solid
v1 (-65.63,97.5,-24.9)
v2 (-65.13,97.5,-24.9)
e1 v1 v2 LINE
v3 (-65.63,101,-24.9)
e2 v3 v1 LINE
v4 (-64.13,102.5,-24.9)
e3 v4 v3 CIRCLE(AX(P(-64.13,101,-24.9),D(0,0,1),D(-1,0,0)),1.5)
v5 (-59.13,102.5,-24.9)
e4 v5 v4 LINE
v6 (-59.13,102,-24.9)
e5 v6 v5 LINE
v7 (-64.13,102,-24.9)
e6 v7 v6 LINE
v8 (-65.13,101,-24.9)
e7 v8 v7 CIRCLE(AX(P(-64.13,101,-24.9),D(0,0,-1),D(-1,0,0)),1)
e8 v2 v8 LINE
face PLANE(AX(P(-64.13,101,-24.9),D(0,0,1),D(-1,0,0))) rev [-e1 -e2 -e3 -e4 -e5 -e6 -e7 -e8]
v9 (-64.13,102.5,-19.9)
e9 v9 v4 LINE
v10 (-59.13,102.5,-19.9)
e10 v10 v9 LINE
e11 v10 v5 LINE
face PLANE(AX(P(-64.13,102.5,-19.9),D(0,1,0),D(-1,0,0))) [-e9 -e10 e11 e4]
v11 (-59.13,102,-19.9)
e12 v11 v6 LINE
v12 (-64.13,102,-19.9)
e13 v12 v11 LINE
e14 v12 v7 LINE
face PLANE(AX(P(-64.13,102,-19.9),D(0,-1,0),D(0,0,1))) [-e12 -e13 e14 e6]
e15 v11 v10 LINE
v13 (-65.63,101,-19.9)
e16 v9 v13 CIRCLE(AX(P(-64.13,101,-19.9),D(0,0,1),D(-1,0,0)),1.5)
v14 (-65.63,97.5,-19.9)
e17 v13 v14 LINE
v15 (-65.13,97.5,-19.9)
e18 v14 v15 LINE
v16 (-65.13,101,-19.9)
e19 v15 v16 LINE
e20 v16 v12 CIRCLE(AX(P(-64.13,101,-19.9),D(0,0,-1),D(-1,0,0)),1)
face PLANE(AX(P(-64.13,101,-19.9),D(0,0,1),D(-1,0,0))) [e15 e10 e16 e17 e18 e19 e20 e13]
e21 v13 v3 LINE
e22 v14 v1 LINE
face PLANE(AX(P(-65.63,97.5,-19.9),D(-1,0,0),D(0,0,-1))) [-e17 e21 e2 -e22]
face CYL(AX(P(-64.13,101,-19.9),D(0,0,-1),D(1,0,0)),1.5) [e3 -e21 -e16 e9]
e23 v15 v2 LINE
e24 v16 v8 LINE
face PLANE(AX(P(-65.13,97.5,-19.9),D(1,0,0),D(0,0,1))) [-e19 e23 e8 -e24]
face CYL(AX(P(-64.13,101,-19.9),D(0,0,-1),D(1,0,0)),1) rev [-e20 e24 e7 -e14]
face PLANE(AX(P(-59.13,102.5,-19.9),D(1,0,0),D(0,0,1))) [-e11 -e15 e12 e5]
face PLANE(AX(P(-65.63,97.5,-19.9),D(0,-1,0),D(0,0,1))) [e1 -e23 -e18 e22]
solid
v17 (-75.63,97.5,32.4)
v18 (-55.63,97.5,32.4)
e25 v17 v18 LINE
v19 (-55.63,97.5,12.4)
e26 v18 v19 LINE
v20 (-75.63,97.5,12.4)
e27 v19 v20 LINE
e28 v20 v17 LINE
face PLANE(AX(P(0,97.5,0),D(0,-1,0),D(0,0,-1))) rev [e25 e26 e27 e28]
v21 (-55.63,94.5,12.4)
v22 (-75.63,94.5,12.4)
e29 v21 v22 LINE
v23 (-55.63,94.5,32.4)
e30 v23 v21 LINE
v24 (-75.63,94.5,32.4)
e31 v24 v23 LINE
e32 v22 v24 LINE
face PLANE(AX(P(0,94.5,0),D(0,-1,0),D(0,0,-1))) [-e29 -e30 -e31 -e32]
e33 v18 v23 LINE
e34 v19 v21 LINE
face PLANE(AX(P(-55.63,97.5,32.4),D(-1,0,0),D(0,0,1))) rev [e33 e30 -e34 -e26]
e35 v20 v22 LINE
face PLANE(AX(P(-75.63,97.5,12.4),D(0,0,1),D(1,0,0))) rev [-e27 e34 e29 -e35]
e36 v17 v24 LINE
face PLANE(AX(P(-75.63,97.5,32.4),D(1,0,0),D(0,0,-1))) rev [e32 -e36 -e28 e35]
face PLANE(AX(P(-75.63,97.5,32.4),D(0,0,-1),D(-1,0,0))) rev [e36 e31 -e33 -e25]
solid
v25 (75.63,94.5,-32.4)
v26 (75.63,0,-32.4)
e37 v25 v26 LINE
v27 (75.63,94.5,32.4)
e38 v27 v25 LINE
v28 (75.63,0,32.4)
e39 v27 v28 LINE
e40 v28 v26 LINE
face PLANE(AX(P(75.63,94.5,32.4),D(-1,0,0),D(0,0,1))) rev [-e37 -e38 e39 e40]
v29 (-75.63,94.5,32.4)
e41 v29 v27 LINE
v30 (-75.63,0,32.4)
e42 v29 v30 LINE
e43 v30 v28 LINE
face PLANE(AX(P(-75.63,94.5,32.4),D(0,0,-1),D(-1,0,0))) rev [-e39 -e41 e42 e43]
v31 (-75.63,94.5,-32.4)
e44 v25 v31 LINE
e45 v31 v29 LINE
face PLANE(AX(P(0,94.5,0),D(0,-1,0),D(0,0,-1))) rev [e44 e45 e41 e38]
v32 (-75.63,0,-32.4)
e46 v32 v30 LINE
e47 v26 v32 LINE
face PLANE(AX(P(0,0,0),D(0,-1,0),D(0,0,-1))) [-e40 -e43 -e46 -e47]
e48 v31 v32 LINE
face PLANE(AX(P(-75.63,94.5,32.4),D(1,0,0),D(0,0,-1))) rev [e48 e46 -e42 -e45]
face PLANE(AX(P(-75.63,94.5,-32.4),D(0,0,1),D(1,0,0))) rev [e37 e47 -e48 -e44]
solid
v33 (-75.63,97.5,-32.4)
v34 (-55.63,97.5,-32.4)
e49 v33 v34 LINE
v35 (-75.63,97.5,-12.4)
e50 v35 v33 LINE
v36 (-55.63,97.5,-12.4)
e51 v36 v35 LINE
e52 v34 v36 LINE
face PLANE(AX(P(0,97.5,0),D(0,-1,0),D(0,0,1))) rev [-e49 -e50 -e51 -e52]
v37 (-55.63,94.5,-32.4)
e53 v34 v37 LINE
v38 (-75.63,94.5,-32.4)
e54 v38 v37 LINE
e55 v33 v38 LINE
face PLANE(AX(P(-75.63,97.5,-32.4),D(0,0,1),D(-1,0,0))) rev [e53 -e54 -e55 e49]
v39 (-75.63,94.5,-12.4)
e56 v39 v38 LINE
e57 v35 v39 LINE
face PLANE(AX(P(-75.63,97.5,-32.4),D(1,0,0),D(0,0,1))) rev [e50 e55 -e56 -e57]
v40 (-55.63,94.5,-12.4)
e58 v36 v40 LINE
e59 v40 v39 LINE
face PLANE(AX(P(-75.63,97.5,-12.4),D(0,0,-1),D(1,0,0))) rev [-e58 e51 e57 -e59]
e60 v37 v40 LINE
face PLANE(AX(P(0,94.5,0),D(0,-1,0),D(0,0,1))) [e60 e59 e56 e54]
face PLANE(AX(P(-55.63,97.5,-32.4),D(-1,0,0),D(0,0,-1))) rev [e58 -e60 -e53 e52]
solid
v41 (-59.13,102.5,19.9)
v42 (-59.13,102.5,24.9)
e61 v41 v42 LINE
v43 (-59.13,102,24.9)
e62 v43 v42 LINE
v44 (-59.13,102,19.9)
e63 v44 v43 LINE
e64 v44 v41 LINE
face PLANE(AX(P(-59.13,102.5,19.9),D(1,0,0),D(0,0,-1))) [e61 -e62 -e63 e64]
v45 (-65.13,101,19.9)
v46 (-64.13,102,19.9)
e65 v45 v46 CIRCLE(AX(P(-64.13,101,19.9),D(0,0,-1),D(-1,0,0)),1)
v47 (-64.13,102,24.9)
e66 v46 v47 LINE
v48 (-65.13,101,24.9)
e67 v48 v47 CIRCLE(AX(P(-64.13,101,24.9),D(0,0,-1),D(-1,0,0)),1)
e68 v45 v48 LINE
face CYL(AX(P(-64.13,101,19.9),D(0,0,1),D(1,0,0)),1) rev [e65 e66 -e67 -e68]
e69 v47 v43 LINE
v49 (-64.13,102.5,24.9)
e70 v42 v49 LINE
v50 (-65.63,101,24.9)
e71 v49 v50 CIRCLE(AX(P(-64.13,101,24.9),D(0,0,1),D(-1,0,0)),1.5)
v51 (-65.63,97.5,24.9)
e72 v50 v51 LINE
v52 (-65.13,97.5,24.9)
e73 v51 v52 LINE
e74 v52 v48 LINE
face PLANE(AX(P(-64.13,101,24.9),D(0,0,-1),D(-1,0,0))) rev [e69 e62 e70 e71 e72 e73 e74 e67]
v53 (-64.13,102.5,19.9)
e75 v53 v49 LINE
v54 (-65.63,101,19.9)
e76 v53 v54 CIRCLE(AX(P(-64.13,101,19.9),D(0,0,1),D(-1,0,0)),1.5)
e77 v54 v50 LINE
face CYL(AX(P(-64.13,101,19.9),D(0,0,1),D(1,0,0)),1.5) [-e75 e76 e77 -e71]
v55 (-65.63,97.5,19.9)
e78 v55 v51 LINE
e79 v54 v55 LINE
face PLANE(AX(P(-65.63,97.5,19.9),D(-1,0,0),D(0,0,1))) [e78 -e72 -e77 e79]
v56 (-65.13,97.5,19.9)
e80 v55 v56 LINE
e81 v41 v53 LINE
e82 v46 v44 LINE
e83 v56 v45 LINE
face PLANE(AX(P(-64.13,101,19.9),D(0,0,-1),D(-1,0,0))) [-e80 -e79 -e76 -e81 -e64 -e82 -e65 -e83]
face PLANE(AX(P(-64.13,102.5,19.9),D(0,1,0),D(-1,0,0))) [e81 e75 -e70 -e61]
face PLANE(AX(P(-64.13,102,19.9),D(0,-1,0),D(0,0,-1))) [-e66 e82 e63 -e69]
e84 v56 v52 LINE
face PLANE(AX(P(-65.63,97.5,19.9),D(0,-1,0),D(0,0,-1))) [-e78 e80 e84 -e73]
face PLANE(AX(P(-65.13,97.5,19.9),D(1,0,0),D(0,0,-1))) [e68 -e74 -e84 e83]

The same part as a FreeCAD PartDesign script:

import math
import FreeCAD as App
import Part
import Sketcher

V = App.Vector
Q = App.Units.Quantity


def add_polygon(sketch, points):
    """Adds a closed chain of lines whose ends are joined by coincident constraints."""
    first, n = sketch.GeometryCount, len(points)
    for a, b in zip(points, points[1:] + points[:1]):
        sketch.addGeometry(Part.LineSegment(App.Vector(*a, 0), App.Vector(*b, 0)), False)
    for i in range(n):
        sketch.addConstraint(Sketcher.Constraint("Coincident", first + i, 2, first + (i + 1) % n, 1))

doc = App.newDocument("Part")
body = doc.addObject("PartDesign::Body", "Body")

# Sketch on XZ plane
sketch1 = body.newObject("Sketcher::SketchObject", "Sketch")
sketch1.AttachmentSupport = (doc.getObject("XZ_Plane"), [""])
sketch1.MapMode = "FlatFace"
add_polygon(sketch1, [(-76, -32), (-76, 32), (76, 32), (76, -32)])  # lines 0-3
sketch1.addConstraint([
    Sketcher.Constraint("Vertical", 0),
    Sketcher.Constraint("Horizontal", 1),
    Sketcher.Constraint("Vertical", 2),
    Sketcher.Constraint("Horizontal", 3),
    Sketcher.Constraint("Symmetric", 0, 2, 2, 2, -1, 1),
    Sketcher.Constraint("DistanceY", 0, 1, 0, 2, Q("64.8 mm")),
    Sketcher.Constraint("DistanceX", 1, 1, 1, 2, Q("151.26 mm")),
])
pad1 = body.newObject("PartDesign::Pad", "Pad")
pad1.Profile = sketch1
pad1.Length = 94.5
pad1.Reversed = True
body2 = doc.addObject("PartDesign::Body", "Body001")

# Sketch on XZ plane
sketch2 = body2.newObject("Sketcher::SketchObject", "Sketch001")
sketch2.AttachmentSupport = (doc.getObject("XZ_Plane001"), [""])
sketch2.MapMode = "FlatFace"
sketch2.AttachmentOffset = App.Placement(V(0, 0, -94.5), App.Rotation())
add_polygon(sketch2, [(-76, 12), (-76, 32), (-56, 32), (-56, 12)])  # lines 0-3
sketch2.addConstraint([
    Sketcher.Constraint("Vertical", 0),
    Sketcher.Constraint("Horizontal", 1),
    Sketcher.Constraint("Vertical", 2),
    Sketcher.Constraint("Horizontal", 3),
    Sketcher.Constraint("Equal", 3, 0),
    Sketcher.Constraint("DistanceX", 1, 1, 1, 2, Q("20 mm")),
    Sketcher.Constraint("DistanceY", -1, 1, 0, 2, Q("32.4 mm")),
    Sketcher.Constraint("DistanceX", 0, 2, -1, 1, Q("75.63 mm")),
])
pad2 = body2.newObject("PartDesign::Pad", "Pad001")
pad2.Profile = sketch2
pad2.Length = 3
pad2.Reversed = True
body3 = doc.addObject("PartDesign::Body", "Body002")

# Sketch on XY plane
sketch3 = body3.newObject("Sketcher::SketchObject", "Sketch002")
sketch3.AttachmentSupport = (doc.getObject("XY_Plane002"), [""])
sketch3.MapMode = "FlatFace"
sketch3.AttachmentOffset = App.Placement(V(0, 0, 22.4), App.Rotation())
sketch3.addGeometry([
    Part.LineSegment(V(-65.6, 101, 0), V(-65.6, 97.5, 0)),  # 0
    Part.LineSegment(V(-65.6, 97.5, 0), V(-65.1, 97.5, 0)),  # 1
    Part.LineSegment(V(-65.1, 97.5, 0), V(-65.1, 101, 0)),  # 2
    Part.ArcOfCircle(Part.Circle(V(-64.1, 101, 0), V(0, 0, 1), 1), math.radians(90), math.radians(180)),  # 3
    Part.LineSegment(V(-64.1, 102, 0), V(-59.1, 102, 0)),  # 4
    Part.LineSegment(V(-59.1, 102, 0), V(-59.1, 102.5, 0)),  # 5
    Part.LineSegment(V(-59.1, 102.5, 0), V(-64.1, 102.5, 0)),  # 6
    Part.ArcOfCircle(Part.Circle(V(-64.1, 101, 0), V(0, 0, 1), 1.5), math.radians(90), math.radians(180)),  # 7
], False)
sketch3.addConstraint([
    Sketcher.Constraint("Coincident", 0, 2, 1, 1),
    Sketcher.Constraint("Coincident", 1, 2, 2, 1),
    Sketcher.Constraint("Tangent", 2, 2, 3, 2),
    Sketcher.Constraint("Tangent", 3, 1, 4, 1),
    Sketcher.Constraint("Coincident", 4, 2, 5, 1),
    Sketcher.Constraint("Coincident", 5, 2, 6, 1),
    Sketcher.Constraint("Tangent", 6, 2, 7, 1),
    Sketcher.Constraint("Tangent", 7, 2, 0, 1),
    Sketcher.Constraint("Vertical", 0),
    Sketcher.Constraint("Horizontal", 1),
    Sketcher.Constraint("Vertical", 2),
    Sketcher.Constraint("Horizontal", 4),
    Sketcher.Constraint("Vertical", 5),
    Sketcher.Constraint("Horizontal", 6),
    Sketcher.Constraint("Coincident", 7, 3, 3, 3),
    Sketcher.Constraint("Radius", 3, Q("1 mm")),
    Sketcher.Constraint("Radius", 7, Q("1.5 mm")),
    Sketcher.Constraint("DistanceX", 4, 1, 4, 2, Q("5 mm")),
    Sketcher.Constraint("DistanceY", 0, 2, 0, 1, Q("3.5 mm")),
    Sketcher.Constraint("DistanceY", -1, 1, 3, 3, Q("101 mm")),
    Sketcher.Constraint("DistanceX", 3, 3, -1, 1, Q("64.13 mm")),
])
pad3 = body3.newObject("PartDesign::Pad", "Pad002")
pad3.Profile = sketch3
pad3.Type = "TwoLengths"
pad3.Length = 2.5
pad3.Length2 = 2.5
body4 = doc.addObject("PartDesign::Body", "Body003")
doc.recompute()

mirroring = doc.addObject("Part::Mirroring", "Mirroring")
mirroring.Source = body3
mirroring.Base = V(0, 0, 0)
mirroring.Normal = V(0, 0, 1)
body4.BaseFeature = mirroring
doc.recompute()
body5 = doc.addObject("PartDesign::Body", "Body004")
doc.recompute()

mirroring2 = doc.addObject("Part::Mirroring", "Mirroring001")
mirroring2.Source = body2
mirroring2.Base = V(0, 0, 0)
mirroring2.Normal = V(0, 0, 1)
body5.BaseFeature = mirroring2
doc.recompute()
mirroring.Visibility = False
mirroring2.Visibility = False

doc.recompute()
